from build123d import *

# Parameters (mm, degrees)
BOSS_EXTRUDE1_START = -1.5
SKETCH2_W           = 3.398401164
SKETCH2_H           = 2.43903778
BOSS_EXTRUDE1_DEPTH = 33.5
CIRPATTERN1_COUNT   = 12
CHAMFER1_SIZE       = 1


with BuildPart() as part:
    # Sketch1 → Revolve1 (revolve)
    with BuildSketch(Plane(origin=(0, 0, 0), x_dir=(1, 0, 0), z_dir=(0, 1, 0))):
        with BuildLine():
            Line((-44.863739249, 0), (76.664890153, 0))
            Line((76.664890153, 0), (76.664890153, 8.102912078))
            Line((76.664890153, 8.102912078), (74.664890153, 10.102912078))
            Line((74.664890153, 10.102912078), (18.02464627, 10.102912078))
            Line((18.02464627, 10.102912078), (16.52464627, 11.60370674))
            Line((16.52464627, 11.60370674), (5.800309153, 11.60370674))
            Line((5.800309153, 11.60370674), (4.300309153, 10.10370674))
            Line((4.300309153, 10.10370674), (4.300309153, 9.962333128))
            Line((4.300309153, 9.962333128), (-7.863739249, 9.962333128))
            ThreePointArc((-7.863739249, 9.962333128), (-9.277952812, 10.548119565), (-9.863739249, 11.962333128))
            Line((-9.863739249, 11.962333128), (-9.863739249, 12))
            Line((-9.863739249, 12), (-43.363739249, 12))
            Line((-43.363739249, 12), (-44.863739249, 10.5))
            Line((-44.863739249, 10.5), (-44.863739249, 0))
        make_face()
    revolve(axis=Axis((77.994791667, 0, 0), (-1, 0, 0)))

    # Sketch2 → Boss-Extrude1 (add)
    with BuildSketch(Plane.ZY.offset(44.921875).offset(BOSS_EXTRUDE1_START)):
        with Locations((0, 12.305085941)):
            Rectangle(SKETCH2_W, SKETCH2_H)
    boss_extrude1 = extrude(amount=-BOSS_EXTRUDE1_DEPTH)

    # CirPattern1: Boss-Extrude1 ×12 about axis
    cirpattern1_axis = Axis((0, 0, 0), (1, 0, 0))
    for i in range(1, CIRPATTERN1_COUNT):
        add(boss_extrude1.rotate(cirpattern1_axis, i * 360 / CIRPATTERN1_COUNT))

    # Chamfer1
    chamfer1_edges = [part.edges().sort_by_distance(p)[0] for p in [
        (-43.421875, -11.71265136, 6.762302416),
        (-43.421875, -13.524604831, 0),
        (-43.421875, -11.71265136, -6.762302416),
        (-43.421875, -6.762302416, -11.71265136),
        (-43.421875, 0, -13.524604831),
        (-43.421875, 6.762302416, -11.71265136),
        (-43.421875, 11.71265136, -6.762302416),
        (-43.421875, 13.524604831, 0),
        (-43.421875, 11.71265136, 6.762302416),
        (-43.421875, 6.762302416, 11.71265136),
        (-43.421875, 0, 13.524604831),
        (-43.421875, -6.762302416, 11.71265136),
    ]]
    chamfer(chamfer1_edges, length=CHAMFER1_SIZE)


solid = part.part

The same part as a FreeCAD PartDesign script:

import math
import FreeCAD as App
import Part
import Sketcher

V = App.Vector
Q = App.Units.Quantity


def edges_at(feature, points):
    """Names of the edges that pass closest to the given points."""
    edges = feature.Shape.Edges
    near = lambda p: min(range(len(edges)), key=lambda i: edges[i].distToShape(Part.Vertex(*p))[0])
    return sorted({f"Edge{near(p) + 1}" for p in points})

doc = App.newDocument("Part")
params = doc.addObject("Spreadsheet::Sheet", "Params")
for row, (alias, value) in enumerate([
    ("sketch1_radius", "2 mm"),
    ("sketch1_width", "33.5 mm"),
    ("sketch1_height", "10.5 mm"),
    ("revolution_angle", "360 deg"),
    ("pad1_length", "33.5 mm"),
    ("chamfer_size", "1 mm"),
], start=1):
    params.set(f"A{row}", alias)
    params.set(f"B{row}", "=" + value)
    params.setAlias(f"B{row}", alias)

body = doc.addObject("PartDesign::Body", "Body")

sketch1 = body.newObject("Sketcher::SketchObject", "Sketch")
sketch1.AttachmentSupport = (doc.getObject("XZ_Plane"), [""])
sketch1.MapMode = "FlatFace"
sketch1.addGeometry([
    Part.LineSegment(V(-44.864, 0, 0), V(76.665, 0, 0)),
    Part.LineSegment(V(76.665, 0, 0), V(76.665, -8.103, 0)),
    Part.LineSegment(V(76.665, -8.103, 0), V(74.665, -10.103, 0)),
    Part.LineSegment(V(74.665, -10.103, 0), V(18.025, -10.103, 0)),
    Part.LineSegment(V(18.025, -10.103, 0), V(16.525, -11.604, 0)),
    Part.LineSegment(V(16.525, -11.604, 0), V(5.8, -11.604, 0)),
    Part.LineSegment(V(5.8, -11.604, 0), V(4.3, -10.104, 0)),
    Part.LineSegment(V(4.3, -10.104, 0), V(4.3, -9.962, 0)),
    Part.LineSegment(V(4.3, -9.962, 0), V(-7.864, -9.962, 0)),
    Part.ArcOfCircle(Part.Circle(V(-7.864, -11.962, 0), V(0, 0, 1), 2), math.radians(90), math.radians(180)),
    Part.LineSegment(V(-9.864, -11.962, 0), V(-9.864, -12, 0)),
    Part.LineSegment(V(-9.864, -12, 0), V(-43.364, -12, 0)),
    Part.LineSegment(V(-43.364, -12, 0), V(-44.864, -10.5, 0)),
    Part.LineSegment(V(-44.864, -10.5, 0), V(-44.864, 0, 0)),
], False)
sketch1.addConstraint([
    Sketcher.Constraint("Coincident", 0, 2, 1, 1),
    Sketcher.Constraint("Coincident", 1, 2, 2, 1),
    Sketcher.Constraint("Coincident", 2, 2, 3, 1),
    Sketcher.Constraint("Coincident", 3, 2, 4, 1),
    Sketcher.Constraint("Coincident", 4, 2, 5, 1),
    Sketcher.Constraint("Coincident", 5, 2, 6, 1),
    Sketcher.Constraint("Coincident", 6, 2, 7, 1),
    Sketcher.Constraint("Coincident", 7, 2, 8, 1),
    Sketcher.Constraint("Tangent", 8, 2, 9, 1),
    Sketcher.Constraint("Tangent", 9, 2, 10, 1),
    Sketcher.Constraint("Coincident", 10, 2, 11, 1),
    Sketcher.Constraint("Coincident", 11, 2, 12, 1),
    Sketcher.Constraint("Coincident", 12, 2, 13, 1),
    Sketcher.Constraint("Coincident", 13, 2, 0, 1),
    Sketcher.Constraint("Horizontal", 0),
    Sketcher.Constraint("Vertical", 1),
    Sketcher.Constraint("Horizontal", 3),
    Sketcher.Constraint("Horizontal", 5),
    Sketcher.Constraint("Vertical", 7),
    Sketcher.Constraint("Horizontal", 8),
    Sketcher.Constraint("Vertical", 10),
    Sketcher.Constraint("Horizontal", 11),
    Sketcher.Constraint("Vertical", 13),
    Sketcher.Constraint("PointOnObject", 0, 2, -1),
    Sketcher.Constraint("Perpendicular", 2, 6),
    Sketcher.Constraint("Parallel", 6, 12),
    Sketcher.Constraint("Equal", 6, 12),
    Sketcher.Constraint("Radius", 9, Q("2 mm")),
    Sketcher.Constraint("Angle", 2, Q("-135 deg")),
    Sketcher.Constraint("DistanceX", 11, 2, 11, 1, Q("33.5 mm")),
    Sketcher.Constraint("DistanceY", 13, 1, 13, 2, Q("10.5 mm")),
    Sketcher.Constraint("DistanceY", 10, 2, -1, 1, Q("12 mm")),
    Sketcher.Constraint("DistanceX", 2, 2, 1, 2, Q("2 mm")),
    Sketcher.Constraint("DistanceX", 4, 2, 3, 2, Q("1.5 mm")),
    Sketcher.Constraint("DistanceX", 0, 1, 0, 2, Q("121.528629 mm")),
    Sketcher.Constraint("DistanceX", 8, 2, 8, 1, Q("12.164048 mm")),
    Sketcher.Constraint("DistanceX", 3, 2, 3, 1, Q("56.640244 mm")),
    Sketcher.Constraint("DistanceY", 1, 2, 1, 1, Q("8.102912 mm")),
    Sketcher.Constraint("DistanceY", 7, 1, 7, 2, Q("0.141374 mm")),
    Sketcher.Constraint("DistanceY", 10, 2, 10, 1, Q("0.037667 mm")),
    Sketcher.Constraint("DistanceX", 9, 3, -1, 1, Q("7.863739 mm")),
])
sketch1.setExpression("Constraints[27]", "Params.sketch1_radius")
sketch1.setExpression("Constraints[29]", "Params.sketch1_width")
sketch1.setExpression("Constraints[30]", "Params.sketch1_height")
revolution = body.newObject("PartDesign::Revolution", "Revolution")
revolution.Profile = sketch1
revolution.ReferenceAxis = (sketch1, ["H_Axis"])
revolution.setExpression("Angle", "Params.revolution_angle")

sketch2 = body.newObject("Sketcher::SketchObject", "Sketch001")
sketch2.AttachmentSupport = (doc.getObject("YZ_Plane"), [""])
sketch2.MapMode = "FlatFace"
sketch2.AttachmentOffset = App.Placement(V(0, 0, -43.421875), App.Rotation())
sketch2.addGeometry([
    Part.LineSegment(V(13.5, -1.7, 0), V(11.1, -1.7, 0)),
    Part.LineSegment(V(11.1, -1.7, 0), V(11.1, 1.7, 0)),
    Part.LineSegment(V(11.1, 1.7, 0), V(13.5, 1.7, 0)),
    Part.LineSegment(V(13.5, 1.7, 0), V(13.5, -1.7, 0)),
], False)
sketch2.addConstraint([
    Sketcher.Constraint("Coincident", 0, 2, 1, 1),
    Sketcher.Constraint("Coincident", 1, 2, 2, 1),
    Sketcher.Constraint("Coincident", 2, 2, 3, 1),
    Sketcher.Constraint("Coincident", 3, 2, 0, 1),
    Sketcher.Constraint("Horizontal", 0),
    Sketcher.Constraint("Vertical", 1),
    Sketcher.Constraint("Horizontal", 2),
    Sketcher.Constraint("Vertical", 3),
    Sketcher.Constraint("DistanceY", 1, 1, 1, 2, Q("3.398401 mm")),
    Sketcher.Constraint("DistanceY", 0, 2, -1, 1, Q("1.699201 mm")),
    Sketcher.Constraint("DistanceX", 0, 2, 0, 1, Q("2.439038 mm")),
    Sketcher.Constraint("DistanceX", -1, 1, 0, 2, Q("11.085567 mm")),
])
pad1 = body.newObject("PartDesign::Pad", "Pad")
pad1.Profile = sketch2
pad1.setExpression("Length", "Params.pad1_length")
doc.recompute()

polarpattern = body.newObject("PartDesign::PolarPattern", "PolarPattern")
polarpattern.Originals = [pad1]
polarpattern.Axis = (doc.getObject("X_Axis"), [""])
polarpattern.Angle = 360
polarpattern.Occurrences = 12
body.Tip = polarpattern
doc.recompute()

chamfer = body.newObject("PartDesign::Chamfer", "Chamfer")
chamfer.Base = (polarpattern, edges_at(polarpattern, [
    (-43.422, -11.713, 6.762),
    (-43.422, -13.525, 0),
    (-43.422, -11.713, -6.762),
    (-43.422, -6.762, -11.713),
    (-43.422, 0, -13.525),
    (-43.422, 6.762, -11.713),
    (-43.422, 11.713, -6.762),
    (-43.422, 13.525, 0),
    (-43.422, 11.713, 6.762),
    (-43.422, 6.762, 11.713),
    (-43.422, 0, 13.525),
    (-43.422, -6.762, 11.713),
]))
chamfer.setExpression("Size", "Params.chamfer_size")

doc.recompute()
